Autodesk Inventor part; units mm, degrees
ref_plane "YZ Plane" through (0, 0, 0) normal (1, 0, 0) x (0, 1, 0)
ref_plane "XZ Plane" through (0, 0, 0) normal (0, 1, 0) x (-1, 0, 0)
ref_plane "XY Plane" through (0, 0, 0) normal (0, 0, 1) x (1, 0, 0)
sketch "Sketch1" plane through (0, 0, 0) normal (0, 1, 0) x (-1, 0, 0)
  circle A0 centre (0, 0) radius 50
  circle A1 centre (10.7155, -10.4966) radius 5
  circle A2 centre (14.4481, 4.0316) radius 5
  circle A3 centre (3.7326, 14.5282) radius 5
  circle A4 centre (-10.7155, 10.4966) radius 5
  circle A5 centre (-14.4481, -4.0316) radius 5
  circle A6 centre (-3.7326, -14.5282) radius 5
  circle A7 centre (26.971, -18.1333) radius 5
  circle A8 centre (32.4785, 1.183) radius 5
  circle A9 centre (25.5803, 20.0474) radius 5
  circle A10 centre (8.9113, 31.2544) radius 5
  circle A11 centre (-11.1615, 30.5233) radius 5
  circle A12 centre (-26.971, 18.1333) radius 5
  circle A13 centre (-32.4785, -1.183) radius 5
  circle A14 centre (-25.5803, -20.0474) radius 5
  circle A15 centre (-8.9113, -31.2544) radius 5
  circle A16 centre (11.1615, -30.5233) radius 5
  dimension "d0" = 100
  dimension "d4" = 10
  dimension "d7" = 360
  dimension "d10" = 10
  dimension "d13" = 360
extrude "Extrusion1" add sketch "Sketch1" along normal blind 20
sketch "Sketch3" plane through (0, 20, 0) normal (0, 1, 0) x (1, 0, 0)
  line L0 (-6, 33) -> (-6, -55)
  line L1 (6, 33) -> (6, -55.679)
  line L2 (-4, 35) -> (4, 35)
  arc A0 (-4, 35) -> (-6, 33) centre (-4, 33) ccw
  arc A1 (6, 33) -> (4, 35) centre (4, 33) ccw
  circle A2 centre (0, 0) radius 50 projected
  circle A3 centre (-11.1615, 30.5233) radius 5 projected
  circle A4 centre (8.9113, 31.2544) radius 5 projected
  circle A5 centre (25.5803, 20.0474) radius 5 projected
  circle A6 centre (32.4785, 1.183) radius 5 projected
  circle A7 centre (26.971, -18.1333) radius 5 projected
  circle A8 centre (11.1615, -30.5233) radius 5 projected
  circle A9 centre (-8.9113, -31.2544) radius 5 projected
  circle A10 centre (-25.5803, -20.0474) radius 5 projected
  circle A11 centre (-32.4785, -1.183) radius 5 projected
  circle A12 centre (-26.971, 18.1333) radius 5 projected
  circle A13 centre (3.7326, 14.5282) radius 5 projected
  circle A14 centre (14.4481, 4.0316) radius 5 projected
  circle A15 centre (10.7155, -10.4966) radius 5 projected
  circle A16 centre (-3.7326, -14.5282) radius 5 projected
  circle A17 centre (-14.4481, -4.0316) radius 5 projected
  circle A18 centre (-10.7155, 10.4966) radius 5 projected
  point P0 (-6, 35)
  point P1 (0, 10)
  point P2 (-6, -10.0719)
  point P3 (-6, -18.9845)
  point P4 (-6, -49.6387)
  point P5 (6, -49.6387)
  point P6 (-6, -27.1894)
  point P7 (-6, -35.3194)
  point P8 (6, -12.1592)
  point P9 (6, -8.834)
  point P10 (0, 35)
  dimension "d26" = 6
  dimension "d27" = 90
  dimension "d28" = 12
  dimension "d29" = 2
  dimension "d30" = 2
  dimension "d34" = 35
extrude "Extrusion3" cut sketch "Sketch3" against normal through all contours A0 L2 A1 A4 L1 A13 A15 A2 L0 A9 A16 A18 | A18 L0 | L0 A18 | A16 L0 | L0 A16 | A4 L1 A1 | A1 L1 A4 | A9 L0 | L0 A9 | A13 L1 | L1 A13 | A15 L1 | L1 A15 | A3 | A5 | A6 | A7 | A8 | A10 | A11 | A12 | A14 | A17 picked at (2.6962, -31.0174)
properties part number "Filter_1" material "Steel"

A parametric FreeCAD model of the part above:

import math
import FreeCAD as App
import Part
import Sketcher
from FreeCAD import Vector
Q = App.Units.Quantity

doc = App.newDocument("Part")
body = doc.addObject("PartDesign::Body", "Body")

sketch1 = body.newObject("Sketcher::SketchObject", "Sketch")
sketch1.AttachmentSupport = (doc.getObject("XZ_Plane"), [""])
sketch1.MapMode = "FlatFace"
sketch1.addGeometry([
    Part.Circle(Vector(0, 0, 0), Vector(0, 0, 1), 50),
    Part.Circle(Vector(9, -31, 0), Vector(0, 0, 1), 5),
    Part.Circle(Vector(26, -20, 0), Vector(0, 0, 1), 5),
    Part.Circle(Vector(32, -1, 0), Vector(0, 0, 1), 5),
    Part.Circle(Vector(4, -15, 0), Vector(0, 0, 1), 5),
    Part.Circle(Vector(14, -4, 0), Vector(0, 0, 1), 5),
    Part.Circle(Vector(-11, -31, 0), Vector(0, 0, 1), 5),
    Part.Circle(Vector(-11, -10, 0), Vector(0, 0, 1), 5),
    Part.Circle(Vector(-27, -18, 0), Vector(0, 0, 1), 5),
    Part.Circle(Vector(27, 18, 0), Vector(0, 0, 1), 5),
    Part.Circle(Vector(11, 10, 0), Vector(0, 0, 1), 5),
    Part.Circle(Vector(11, 31, 0), Vector(0, 0, 1), 5),
    Part.Circle(Vector(-14, 4, 0), Vector(0, 0, 1), 5),
    Part.Circle(Vector(-4, 15, 0), Vector(0, 0, 1), 5),
    Part.Circle(Vector(-32, 1, 0), Vector(0, 0, 1), 5),
    Part.Circle(Vector(-26, 20, 0), Vector(0, 0, 1), 5),
    Part.Circle(Vector(-9, 31, 0), Vector(0, 0, 1), 5),
], False)
sketch1.addConstraint([
    Sketcher.Constraint("Coincident", 0, 3, -1, 1),
    Sketcher.Constraint("Equal", 1, 2),
    Sketcher.Constraint("Equal", 2, 3),
    Sketcher.Constraint("Equal", 3, 4),
    Sketcher.Constraint("Equal", 4, 5),
    Sketcher.Constraint("Equal", 5, 6),
    Sketcher.Constraint("Equal", 6, 7),
    Sketcher.Constraint("Equal", 7, 8),
    Sketcher.Constraint("Equal", 8, 9),
    Sketcher.Constraint("Equal", 9, 10),
    Sketcher.Constraint("Equal", 10, 11),
    Sketcher.Constraint("Equal", 11, 12),
    Sketcher.Constraint("Equal", 12, 13),
    Sketcher.Constraint("Equal", 13, 14),
    Sketcher.Constraint("Equal", 14, 15),
    Sketcher.Constraint("Equal", 15, 16),
    Sketcher.Constraint("Symmetric", 8, 3, 9, 3, -1, 1),
    Sketcher.Constraint("Symmetric", 7, 3, 10, 3, -1, 1),
    Sketcher.Constraint("Symmetric", 6, 3, 11, 3, -1, 1),
    Sketcher.Constraint("Symmetric", 5, 3, 12, 3, -1, 1),
    Sketcher.Constraint("Symmetric", 4, 3, 13, 3, -1, 1),
    Sketcher.Constraint("Symmetric", 3, 3, 14, 3, -1, 1),
    Sketcher.Constraint("Symmetric", 2, 3, 15, 3, -1, 1),
    Sketcher.Constraint("Symmetric", 1, 3, 16, 3, -1, 1),
    Sketcher.Constraint("Diameter", 0, Q("100 mm")),
    Sketcher.Constraint("Diameter", 1, Q("10 mm")),
    Sketcher.Constraint("DistanceY", 6, 3, 8, 3, Q("12.39 mm")),
    Sketcher.Constraint("DistanceY", 3, 3, -1, 1, Q("1.183 mm")),
    Sketcher.Constraint("DistanceX", -1, 1, 5, 3, Q("14.448 mm")),
    Sketcher.Constraint("DistanceX", 8, 3, -1, 1, Q("26.971 mm")),
    Sketcher.Constraint("DistanceX", 1, 3, 2, 3, Q("16.669 mm")),
    Sketcher.Constraint("DistanceY", 1, 3, 2, 3, Q("11.207 mm")),
    Sketcher.Constraint("DistanceX", 4, 3, 3, 3, Q("28.746 mm")),
    Sketcher.Constraint("DistanceY", 1, 3, 6, 3, Q("0.731 mm")),
    Sketcher.Constraint("DistanceX", 6, 3, 4, 3, Q("14.894 mm")),
    Sketcher.Constraint("DistanceY", 6, 3, 4, 3, Q("15.995 mm")),
    Sketcher.Constraint("DistanceX", 7, 3, 4, 3, Q("14.448 mm")),
    Sketcher.Constraint("DistanceY", 7, 3, 5, 3, Q("6.465 mm")),
    Sketcher.Constraint("DistanceY", 5, 3, 9, 3, Q("22.165 mm")),
    Sketcher.Constraint("DistanceX", 10, 3, 3, 3, Q("21.763 mm")),
    Sketcher.Constraint("DistanceX", -1, 1, 1, 3, Q("8.9113 mm")),
    Sketcher.Constraint("DistanceY", 1, 3, -1, 1, Q("31.2544 mm")),
])
pad1 = body.newObject("PartDesign::Pad", "Pad")
pad1.Profile = sketch1
pad1.Length = 20
pad1.Reversed = True

sketch2 = body.newObject("Sketcher::SketchObject", "Sketch001")
sketch2.AttachmentSupport = (doc.getObject("XZ_Plane"), [""])
sketch2.MapMode = "FlatFace"
sketch2.AttachmentOffset = App.Placement(Vector(0, 0, -20), App.Rotation())
sketch2.addGeometry([
    Part.ArcOfCircle(Part.Circle(Vector(-4, -33, 0), Vector(0, 0, 1), 2), math.radians(180), math.radians(270)),
    Part.LineSegment(Vector(-6, -33, 0), Vector(-6, -12.2, 0)),
    Part.ArcOfCircle(Part.Circle(Vector(-10.7, -10.5, 0), Vector(0, 0, 1), 5), math.radians(19), math.radians(341)),
    Part.LineSegment(Vector(-6, -8.8, 0), Vector(-6, 10.1, 0)),
    Part.ArcOfCircle(Part.Circle(Vector(-3.7, 14.5, 0), Vector(0, 0, 1), 5), math.radians(117), math.radians(243)),
    Part.LineSegment(Vector(-6, 19, 0), Vector(-6, 27.2, 0)),
    Part.ArcOfCircle(Part.Circle(Vector(-8.9, 31.3, 0), Vector(0, 0, 1), 5), math.radians(54), math.radians(306)),
    Part.LineSegment(Vector(-6, 35.3, 0), Vector(-6, 49.6, 0)),
    Part.ArcOfCircle(Part.Circle(Vector(0, 0, 0), Vector(0, 0, 1), 50), math.radians(83.11), math.radians(96.89)),
    Part.LineSegment(Vector(6, 49.6, 0), Vector(6, 12.2, 0)),
    Part.ArcOfCircle(Part.Circle(Vector(10.7, 10.5, 0), Vector(0, 0, 1), 5), math.radians(-161), math.radians(161)),
    Part.LineSegment(Vector(6, 8.8, 0), Vector(6, -10.1, 0)),
    Part.ArcOfCircle(Part.Circle(Vector(3.7, -14.5, 0), Vector(0, 0, 1), 5), math.radians(-63), math.radians(63)),
    Part.LineSegment(Vector(6, -19, 0), Vector(6, -27.2, 0)),
    Part.ArcOfCircle(Part.Circle(Vector(8.9, -31.3, 0), Vector(0, 0, 1), 5), math.radians(-138), math.radians(126)),
    Part.ArcOfCircle(Part.Circle(Vector(4, -33, 0), Vector(0, 0, 1), 2), math.radians(-90), math.radians(-53)),
    Part.LineSegment(Vector(4, -35, 0), Vector(-4, -35, 0)),
    Part.Circle(Vector(-11.2, -30.5, 0), Vector(0, 0, 1), 5),
    Part.Circle(Vector(25.6, -20, 0), Vector(0, 0, 1), 5),
    Part.Circle(Vector(32.5, -1.2, 0), Vector(0, 0, 1), 5),
    Part.Circle(Vector(27, 18.1, 0), Vector(0, 0, 1), 5),
    Part.Circle(Vector(11.2, 30.5, 0), Vector(0, 0, 1), 5),
    Part.Circle(Vector(-25.6, 20, 0), Vector(0, 0, 1), 5),
    Part.Circle(Vector(-32.5, 1.2, 0), Vector(0, 0, 1), 5),
    Part.Circle(Vector(-27, -18.1, 0), Vector(0, 0, 1), 5),
    Part.Circle(Vector(14.4, -4, 0), Vector(0, 0, 1), 5),
    Part.Circle(Vector(-14.4, 4, 0), Vector(0, 0, 1), 5),
], False)
sketch2.addConstraint([
    Sketcher.Constraint("Tangent", 0, 1, 1, 1),
    Sketcher.Constraint("Coincident", 1, 2, 2, 2),
    Sketcher.Constraint("Coincident", 2, 1, 3, 1),
    Sketcher.Constraint("Coincident", 3, 2, 4, 2),
    Sketcher.Constraint("Coincident", 4, 1, 5, 1),
    Sketcher.Constraint("Coincident", 5, 2, 6, 2),
    Sketcher.Constraint("Coincident", 6, 1, 7, 1),
    Sketcher.Constraint("Coincident", 7, 2, 8, 2),
    Sketcher.Constraint("Coincident", 8, 1, 9, 1),
    Sketcher.Constraint("Coincident", 9, 2, 10, 2),
    Sketcher.Constraint("Coincident", 10, 1, 11, 1),
    Sketcher.Constraint("Coincident", 11, 2, 12, 2),
    Sketcher.Constraint("Coincident", 12, 1, 13, 1),
    Sketcher.Constraint("Coincident", 13, 2, 14, 2),
    Sketcher.Constraint("Coincident", 14, 1, 15, 2),
    Sketcher.Constraint("Tangent", 15, 1, 16, 1),
    Sketcher.Constraint("Tangent", 16, 2, 0, 2),
    Sketcher.Constraint("Vertical", 1),
    Sketcher.Constraint("Vertical", 3),
    Sketcher.Constraint("Vertical", 5),
    Sketcher.Constraint("Vertical", 7),
    Sketcher.Constraint("Vertical", 9),
    Sketcher.Constraint("Vertical", 11),
    Sketcher.Constraint("Vertical", 13),
    Sketcher.Constraint("Horizontal", 16),
    Sketcher.Constraint("Coincident", 8, 3, -1, 1),
    Sketcher.Constraint("Equal", 2, 4),
    Sketcher.Constraint("Equal", 4, 6),
    Sketcher.Constraint("Equal", 6, 10),
    Sketcher.Constraint("Equal", 10, 12),
    Sketcher.Constraint("Equal", 12, 14),
    Sketcher.Constraint("Equal", 0, 15),
    Sketcher.Constraint("Equal", 14, 17),
    Sketcher.Constraint("Equal", 17, 18),
    Sketcher.Constraint("Equal", 18, 19),
    Sketcher.Constraint("Equal", 19, 20),
    Sketcher.Constraint("Equal", 20, 21),
    Sketcher.Constraint("Equal", 21, 22),
    Sketcher.Constraint("Equal", 22, 23),
    Sketcher.Constraint("Equal", 23, 24),
    Sketcher.Constraint("Equal", 24, 25),
    Sketcher.Constraint("Equal", 25, 26),
    Sketcher.Constraint("Symmetric", 2, 3, 10, 3, -1, 1),
    Sketcher.Constraint("Symmetric", 4, 3, 12, 3, -1, 1),
    Sketcher.Constraint("Symmetric", 6, 3, 14, 3, -1, 1),
    Sketcher.Constraint("Symmetric", 17, 3, 21, 3, -1, 1),
    Sketcher.Constraint("Symmetric", 18, 3, 22, 3, -1, 1),
    Sketcher.Constraint("Symmetric", 19, 3, 23, 3, -1, 1),
    Sketcher.Constraint("Symmetric", 20, 3, 24, 3, -1, 1),
    Sketcher.Constraint("Symmetric", 25, 3, 26, 3, -1, 1),
    Sketcher.Constraint("Horizontal", 7, 2, 8, 1),
    Sketcher.Constraint("Vertical", 1, 2, 2, 1),
    Sketcher.Constraint("Vertical", 3, 2, 4, 1),
    Sketcher.Constraint("Vertical", 5, 2, 6, 1),
    Sketcher.Constraint("Vertical", 9, 2, 10, 1),
    Sketcher.Constraint("Vertical", 11, 2, 12, 1),
    Sketcher.Constraint("Radius", 0, Q("2 mm")),
    Sketcher.Constraint("Diameter", 17, Q("10 mm")),
    Sketcher.Constraint("DistanceX", 0, 1, -1, 1, Q("6 mm")),
    Sketcher.Constraint("DistanceY", 15, 1, -1, 1, Q("35 mm")),
    Sketcher.Constraint("Radius", 8, Q("50 mm")),
    Sketcher.Constraint("DistanceX", 15, 3, 12, 1, Q("2 mm")),
    Sketcher.Constraint("DistanceY", 3, 1, 3, 2, Q("18.906 mm")),
    Sketcher.Constraint("DistanceY", 20, 3, 21, 3, Q("12.39 mm")),
    Sketcher.Constraint("DistanceY", 5, 2, 6, 1, Q("8.13 mm")),
    Sketcher.Constraint("DistanceY", 1, 1, 1, 2, Q("20.8409 mm")),
    Sketcher.Constraint("DistanceY", 5, 1, 5, 2, Q("8.2049 mm")),
    Sketcher.Constraint("DistanceY", 7, 1, 7, 2, Q("14.3193 mm")),
    Sketcher.Constraint("DistanceY", 19, 3, -1, 1, Q("1.183 mm")),
    Sketcher.Constraint("DistanceX", -1, 1, 20, 3, Q("26.971 mm")),
    Sketcher.Constraint("DistanceX", -1, 1, 25, 3, Q("14.448 mm")),
    Sketcher.Constraint("DistanceY", 2, 1, -1, 1, Q("8.834 mm")),
    Sketcher.Constraint("DistanceX", 17, 3, 2, 3, Q("0.446 mm")),
    Sketcher.Constraint("DistanceY", 14, 3, 17, 3, Q("0.731 mm")),
    Sketcher.Constraint("DistanceX", 14, 3, 18, 3, Q("16.669 mm")),
    Sketcher.Constraint("DistanceY", 14, 3, 18, 3, Q("11.207 mm")),
    Sketcher.Constraint("DistanceX", 10, 3, 19, 3, Q("21.763 mm")),
    Sketcher.Constraint("DistanceY", 26, 3, 4, 1, Q("14.953 mm")),
])
pocket1 = body.newObject("PartDesign::Pocket", "Pocket")
pocket1.Profile = sketch2
pocket1.Type = "ThroughAll"
pocket1.Reversed = True

doc.recompute()
